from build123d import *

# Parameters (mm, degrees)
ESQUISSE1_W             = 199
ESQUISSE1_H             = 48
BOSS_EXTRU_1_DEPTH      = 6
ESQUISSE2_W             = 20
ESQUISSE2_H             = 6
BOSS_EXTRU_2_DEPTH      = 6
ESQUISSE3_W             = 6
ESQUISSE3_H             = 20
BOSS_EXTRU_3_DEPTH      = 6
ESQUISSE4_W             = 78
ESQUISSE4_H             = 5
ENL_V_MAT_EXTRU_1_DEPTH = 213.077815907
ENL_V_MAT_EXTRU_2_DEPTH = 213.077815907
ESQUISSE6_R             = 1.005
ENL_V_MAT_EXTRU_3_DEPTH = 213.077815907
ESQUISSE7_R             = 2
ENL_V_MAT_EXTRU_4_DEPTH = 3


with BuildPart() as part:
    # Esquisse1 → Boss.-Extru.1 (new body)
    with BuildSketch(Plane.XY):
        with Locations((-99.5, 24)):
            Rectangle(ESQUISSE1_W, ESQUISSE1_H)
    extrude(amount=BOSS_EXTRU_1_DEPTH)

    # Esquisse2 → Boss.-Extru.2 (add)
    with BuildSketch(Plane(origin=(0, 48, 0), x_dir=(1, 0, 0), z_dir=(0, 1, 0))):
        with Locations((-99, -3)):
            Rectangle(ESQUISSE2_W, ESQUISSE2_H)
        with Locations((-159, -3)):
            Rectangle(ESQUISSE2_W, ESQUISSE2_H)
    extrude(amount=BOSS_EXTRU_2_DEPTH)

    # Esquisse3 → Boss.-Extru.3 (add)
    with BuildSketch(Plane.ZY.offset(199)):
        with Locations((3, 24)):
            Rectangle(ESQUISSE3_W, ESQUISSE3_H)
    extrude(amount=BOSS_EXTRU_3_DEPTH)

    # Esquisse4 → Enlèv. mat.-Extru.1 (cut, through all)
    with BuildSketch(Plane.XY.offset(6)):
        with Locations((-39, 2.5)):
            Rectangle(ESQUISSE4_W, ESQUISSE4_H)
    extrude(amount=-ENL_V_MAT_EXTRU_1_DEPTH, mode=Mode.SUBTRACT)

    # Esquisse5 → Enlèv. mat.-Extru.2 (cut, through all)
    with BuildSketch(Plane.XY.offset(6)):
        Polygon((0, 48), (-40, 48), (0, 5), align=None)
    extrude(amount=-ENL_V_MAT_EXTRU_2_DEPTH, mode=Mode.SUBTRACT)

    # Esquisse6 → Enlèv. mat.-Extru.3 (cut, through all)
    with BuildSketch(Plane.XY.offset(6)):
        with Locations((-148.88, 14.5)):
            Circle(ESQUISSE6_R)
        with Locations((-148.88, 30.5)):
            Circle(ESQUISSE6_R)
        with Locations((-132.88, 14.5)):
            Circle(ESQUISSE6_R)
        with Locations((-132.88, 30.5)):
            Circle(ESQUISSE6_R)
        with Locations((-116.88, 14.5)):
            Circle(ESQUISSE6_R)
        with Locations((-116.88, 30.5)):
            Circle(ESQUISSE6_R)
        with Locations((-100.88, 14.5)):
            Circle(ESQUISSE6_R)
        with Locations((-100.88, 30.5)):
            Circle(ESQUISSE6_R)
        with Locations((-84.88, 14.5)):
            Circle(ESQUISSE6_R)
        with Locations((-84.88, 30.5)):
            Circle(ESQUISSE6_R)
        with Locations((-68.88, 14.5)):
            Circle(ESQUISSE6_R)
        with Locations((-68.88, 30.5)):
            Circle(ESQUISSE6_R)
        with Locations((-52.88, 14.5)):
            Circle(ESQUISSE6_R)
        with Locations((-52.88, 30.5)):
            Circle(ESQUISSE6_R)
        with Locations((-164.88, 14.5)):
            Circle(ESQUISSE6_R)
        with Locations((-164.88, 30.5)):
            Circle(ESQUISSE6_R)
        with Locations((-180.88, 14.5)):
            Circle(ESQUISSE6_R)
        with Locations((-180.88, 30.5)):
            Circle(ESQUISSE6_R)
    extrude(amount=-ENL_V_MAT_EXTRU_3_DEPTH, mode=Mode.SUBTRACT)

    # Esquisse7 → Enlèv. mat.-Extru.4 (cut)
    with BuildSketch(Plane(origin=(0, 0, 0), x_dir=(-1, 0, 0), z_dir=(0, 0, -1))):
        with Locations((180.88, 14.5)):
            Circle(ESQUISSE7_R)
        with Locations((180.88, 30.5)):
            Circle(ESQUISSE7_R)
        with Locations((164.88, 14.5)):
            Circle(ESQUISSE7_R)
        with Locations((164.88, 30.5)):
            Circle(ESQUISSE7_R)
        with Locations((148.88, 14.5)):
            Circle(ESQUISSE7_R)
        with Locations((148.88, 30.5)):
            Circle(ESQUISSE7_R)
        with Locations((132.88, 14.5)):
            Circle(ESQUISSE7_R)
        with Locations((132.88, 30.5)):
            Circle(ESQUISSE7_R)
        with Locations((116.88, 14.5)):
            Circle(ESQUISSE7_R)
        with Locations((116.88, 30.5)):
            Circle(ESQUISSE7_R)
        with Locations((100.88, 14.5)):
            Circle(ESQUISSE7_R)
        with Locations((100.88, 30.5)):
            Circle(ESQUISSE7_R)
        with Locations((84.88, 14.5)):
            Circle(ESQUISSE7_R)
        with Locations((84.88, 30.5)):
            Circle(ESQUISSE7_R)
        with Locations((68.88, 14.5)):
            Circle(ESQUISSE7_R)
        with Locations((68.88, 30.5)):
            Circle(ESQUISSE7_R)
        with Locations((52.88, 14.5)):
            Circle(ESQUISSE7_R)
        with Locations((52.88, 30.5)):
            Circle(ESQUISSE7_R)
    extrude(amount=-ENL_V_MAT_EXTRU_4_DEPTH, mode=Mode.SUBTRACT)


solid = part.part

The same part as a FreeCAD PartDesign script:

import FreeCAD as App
import Part
import Sketcher
from FreeCAD import Vector


def add_polygon(sketch, points):
    """Adds a closed chain of lines whose ends are joined by coincident constraints."""
    first, n = sketch.GeometryCount, len(points)
    for a, b in zip(points, points[1:] + points[:1]):
        sketch.addGeometry(Part.LineSegment(App.Vector(*a, 0), App.Vector(*b, 0)), False)
    for i in range(n):
        sketch.addConstraint(Sketcher.Constraint("Coincident", first + i, 2, first + (i + 1) % n, 1))

doc = App.newDocument("Part")
params = doc.addObject("Spreadsheet::Sheet", "Params")
for row, (alias, value) in enumerate([
    ("sketch1_width", "199 mm"),
    ("sketch1_height", "48 mm"),
    ("pad1_length", "6 mm"),
    ("sketch2_width", "20 mm"),
    ("sketch2_height", "6 mm"),
    ("pad2_length", "6 mm"),
    ("sketch3_width", "20 mm"),
    ("sketch3_height", "6 mm"),
    ("pad3_length", "6 mm"),
    ("sketch4_width", "78 mm"),
    ("sketch4_height", "5 mm"),
    ("sketch5_width", "40 mm"),
    ("sketch5_height", "43 mm"),
    ("sketch6_diameter", "2.01 mm"),
    ("sketch7_diameter", "4 mm"),
    ("pocket4_length", "3 mm"),
], start=1):
    params.set(f"A{row}", alias)
    params.set(f"B{row}", "=" + value)
    params.setAlias(f"B{row}", alias)

body = doc.addObject("PartDesign::Body", "Body")

sketch1 = body.newObject("Sketcher::SketchObject", "Sketch")
sketch1.AttachmentSupport = (doc.getObject("XY_Plane"), [""])
sketch1.MapMode = "FlatFace"
add_polygon(sketch1, [(-199, 48), (-199, 0), (0, 0), (0, 48)])
sketch1.addConstraint(Sketcher.Constraint("Vertical", 0))
sketch1.addConstraint(Sketcher.Constraint("Horizontal", 1))
sketch1.addConstraint(Sketcher.Constraint("Vertical", 2))
sketch1.addConstraint(Sketcher.Constraint("Horizontal", 3))
sketch1.addConstraint(Sketcher.Constraint("Coincident", 1, 2, -1, 1))
sketch1.addConstraint(Sketcher.Constraint("DistanceX", 1, 1, 1, 2, 199.0))
sketch1.addConstraint(Sketcher.Constraint("DistanceY", 0, 2, 0, 1, 48.0))
sketch1.setExpression("Constraints[9]", "Params.sketch1_width")
sketch1.setExpression("Constraints[10]", "Params.sketch1_height")
pad1 = body.newObject("PartDesign::Pad", "Pad")
pad1.Profile = sketch1
pad1.setExpression("Length", "Params.pad1_length")

sketch2 = body.newObject("Sketcher::SketchObject", "Sketch001")
sketch2.AttachmentSupport = (doc.getObject("XZ_Plane"), [""])
sketch2.MapMode = "FlatFace"
sketch2.AttachmentOffset = App.Placement(Vector(0, 0, -48), App.Rotation())
add_polygon(sketch2, [(-109, 0), (-109, 6), (-89, 6), (-89, 0)])
add_polygon(sketch2, [(-169, 0), (-169, 6), (-149, 6), (-149, 0)])
sketch2.addConstraint(Sketcher.Constraint("Vertical", 0))
sketch2.addConstraint(Sketcher.Constraint("Horizontal", 1))
sketch2.addConstraint(Sketcher.Constraint("Vertical", 2))
sketch2.addConstraint(Sketcher.Constraint("Horizontal", 3))
sketch2.addConstraint(Sketcher.Constraint("Vertical", 4))
sketch2.addConstraint(Sketcher.Constraint("Horizontal", 5))
sketch2.addConstraint(Sketcher.Constraint("Vertical", 6))
sketch2.addConstraint(Sketcher.Constraint("Horizontal", 7))
sketch2.addConstraint(Sketcher.Constraint("PointOnObject", 2, 2, -1))
sketch2.addConstraint(Sketcher.Constraint("PointOnObject", 6, 2, -1))
sketch2.addConstraint(Sketcher.Constraint("Horizontal", 1, 2, 4, 2))
sketch2.addConstraint(Sketcher.Constraint("Equal", 3, 5))
sketch2.addConstraint(Sketcher.Constraint("DistanceX", 1, 1, 1, 2, 20.0))
sketch2.addConstraint(Sketcher.Constraint("DistanceY", 0, 1, 0, 2, 6.0))
sketch2.addConstraint(Sketcher.Constraint("DistanceX", 0, 2, -1, 1, 109.0))
sketch2.addConstraint(Sketcher.Constraint("DistanceX", 4, 2, -1, 1, 169.0))
sketch2.setExpression("Constraints[20]", "Params.sketch2_width")
sketch2.setExpression("Constraints[21]", "Params.sketch2_height")
pad2 = body.newObject("PartDesign::Pad", "Pad001")
pad2.Profile = sketch2
pad2.setExpression("Length", "Params.pad2_length")
pad2.Reversed = True

sketch3 = body.newObject("Sketcher::SketchObject", "Sketch002")
sketch3.AttachmentSupport = (doc.getObject("YZ_Plane"), [""])
sketch3.MapMode = "FlatFace"
sketch3.AttachmentOffset = App.Placement(Vector(0, 0, -199), App.Rotation())
add_polygon(sketch3, [(34, 0), (14, 0), (14, 6), (34, 6)])
sketch3.addConstraint(Sketcher.Constraint("Horizontal", 0))
sketch3.addConstraint(Sketcher.Constraint("Vertical", 1))
sketch3.addConstraint(Sketcher.Constraint("Horizontal", 2))
sketch3.addConstraint(Sketcher.Constraint("Vertical", 3))
sketch3.addConstraint(Sketcher.Constraint("PointOnObject", 0, 2, -1))
sketch3.addConstraint(Sketcher.Constraint("DistanceX", 0, 2, 0, 1, 20.0))
sketch3.addConstraint(Sketcher.Constraint("DistanceY", 1, 1, 1, 2, 6.0))
sketch3.addConstraint(Sketcher.Constraint("DistanceX", -1, 1, 0, 2, 14.0))
sketch3.setExpression("Constraints[9]", "Params.sketch3_width")
sketch3.setExpression("Constraints[10]", "Params.sketch3_height")
pad3 = body.newObject("PartDesign::Pad", "Pad002")
pad3.Profile = sketch3
pad3.setExpression("Length", "Params.pad3_length")
pad3.Reversed = True

sketch4 = body.newObject("Sketcher::SketchObject", "Sketch003")
sketch4.AttachmentSupport = (doc.getObject("XY_Plane"), [""])
sketch4.MapMode = "FlatFace"
sketch4.AttachmentOffset = App.Placement(Vector(0, 0, 6), App.Rotation())
add_polygon(sketch4, [(-78, 5), (-78, 0), (0, 0), (0, 5)])
sketch4.addConstraint(Sketcher.Constraint("Vertical", 0))
sketch4.addConstraint(Sketcher.Constraint("Horizontal", 1))
sketch4.addConstraint(Sketcher.Constraint("Vertical", 2))
sketch4.addConstraint(Sketcher.Constraint("Horizontal", 3))
sketch4.addConstraint(Sketcher.Constraint("Coincident", 1, 2, -1, 1))
sketch4.addConstraint(Sketcher.Constraint("DistanceX", 1, 1, 1, 2, 78.0))
sketch4.addConstraint(Sketcher.Constraint("DistanceY", 0, 2, 0, 1, 5.0))
sketch4.setExpression("Constraints[9]", "Params.sketch4_width")
sketch4.setExpression("Constraints[10]", "Params.sketch4_height")
pocket1 = body.newObject("PartDesign::Pocket", "Pocket")
pocket1.Profile = sketch4
pocket1.Type = "ThroughAll"

sketch5 = body.newObject("Sketcher::SketchObject", "Sketch004")
sketch5.AttachmentSupport = (doc.getObject("XY_Plane"), [""])
sketch5.MapMode = "FlatFace"
sketch5.AttachmentOffset = App.Placement(Vector(0, 0, 6), App.Rotation())
add_polygon(sketch5, [(0, 48), (-40, 48), (0, 5)])
sketch5.addConstraint(Sketcher.Constraint("Horizontal", 0))
sketch5.addConstraint(Sketcher.Constraint("Vertical", 2))
sketch5.addConstraint(Sketcher.Constraint("PointOnObject", 1, 2, -2))
sketch5.addConstraint(Sketcher.Constraint("DistanceX", 0, 2, 0, 1, 40.0))
sketch5.addConstraint(Sketcher.Constraint("DistanceY", 2, 1, 2, 2, 43.0))
sketch5.addConstraint(Sketcher.Constraint("DistanceY", -1, 1, 0, 2, 48.0))
sketch5.setExpression("Constraints[6]", "Params.sketch5_width")
sketch5.setExpression("Constraints[7]", "Params.sketch5_height")
pocket2 = body.newObject("PartDesign::Pocket", "Pocket001")
pocket2.Profile = sketch5
pocket2.Type = "ThroughAll"

sketch6 = body.newObject("Sketcher::SketchObject", "Sketch005")
sketch6.AttachmentSupport = (doc.getObject("XY_Plane"), [""])
sketch6.MapMode = "FlatFace"
sketch6.AttachmentOffset = App.Placement(Vector(0, 0, 6), App.Rotation())
sketch6.addGeometry(Part.Circle(Vector(-148.88, 14.5, 0), Vector(0, 0, 1), 1.005), False)
sketch6.addGeometry(Part.Circle(Vector(-148.88, 30.5, 0), Vector(0, 0, 1), 1.005), False)
sketch6.addGeometry(Part.Circle(Vector(-132.88, 14.5, 0), Vector(0, 0, 1), 1.005), False)
sketch6.addGeometry(Part.Circle(Vector(-132.88, 30.5, 0), Vector(0, 0, 1), 1.005), False)
sketch6.addGeometry(Part.Circle(Vector(-116.88, 14.5, 0), Vector(0, 0, 1), 1.005), False)
sketch6.addGeometry(Part.Circle(Vector(-116.88, 30.5, 0), Vector(0, 0, 1), 1.005), False)
sketch6.addGeometry(Part.Circle(Vector(-100.88, 14.5, 0), Vector(0, 0, 1), 1.005), False)
sketch6.addGeometry(Part.Circle(Vector(-100.88, 30.5, 0), Vector(0, 0, 1), 1.005), False)
sketch6.addGeometry(Part.Circle(Vector(-84.88, 14.5, 0), Vector(0, 0, 1), 1.005), False)
sketch6.addGeometry(Part.Circle(Vector(-84.88, 30.5, 0), Vector(0, 0, 1), 1.005), False)
sketch6.addGeometry(Part.Circle(Vector(-68.88, 14.5, 0), Vector(0, 0, 1), 1.005), False)
sketch6.addGeometry(Part.Circle(Vector(-68.88, 30.5, 0), Vector(0, 0, 1), 1.005), False)
sketch6.addGeometry(Part.Circle(Vector(-52.88, 14.5, 0), Vector(0, 0, 1), 1.005), False)
sketch6.addGeometry(Part.Circle(Vector(-52.88, 30.5, 0), Vector(0, 0, 1), 1.005), False)
sketch6.addGeometry(Part.Circle(Vector(-164.88, 14.5, 0), Vector(0, 0, 1), 1.005), False)
sketch6.addGeometry(Part.Circle(Vector(-164.88, 30.5, 0), Vector(0, 0, 1), 1.005), False)
sketch6.addGeometry(Part.Circle(Vector(-180.88, 14.5, 0), Vector(0, 0, 1), 1.005), False)
sketch6.addGeometry(Part.Circle(Vector(-180.88, 30.5, 0), Vector(0, 0, 1), 1.005), False)
sketch6.addConstraint(Sketcher.Constraint("Equal", 0, 1))
sketch6.addConstraint(Sketcher.Constraint("Equal", 1, 2))
sketch6.addConstraint(Sketcher.Constraint("Equal", 2, 3))
sketch6.addConstraint(Sketcher.Constraint("Equal", 3, 4))
sketch6.addConstraint(Sketcher.Constraint("Equal", 4, 5))
sketch6.addConstraint(Sketcher.Constraint("Equal", 5, 6))
sketch6.addConstraint(Sketcher.Constraint("Equal", 6, 7))
sketch6.addConstraint(Sketcher.Constraint("Equal", 7, 8))
sketch6.addConstraint(Sketcher.Constraint("Equal", 8, 9))
sketch6.addConstraint(Sketcher.Constraint("Equal", 9, 10))
sketch6.addConstraint(Sketcher.Constraint("Equal", 10, 11))
sketch6.addConstraint(Sketcher.Constraint("Equal", 11, 12))
sketch6.addConstraint(Sketcher.Constraint("Equal", 12, 13))
sketch6.addConstraint(Sketcher.Constraint("Equal", 13, 14))
sketch6.addConstraint(Sketcher.Constraint("Equal", 14, 15))
sketch6.addConstraint(Sketcher.Constraint("Equal", 15, 16))
sketch6.addConstraint(Sketcher.Constraint("Equal", 16, 17))
sketch6.addConstraint(Sketcher.Constraint("Horizontal", 0, 3, 2, 3))
sketch6.addConstraint(Sketcher.Constraint("Horizontal", 1, 3, 3, 3))
sketch6.addConstraint(Sketcher.Constraint("Horizontal", 2, 3, 4, 3))
sketch6.addConstraint(Sketcher.Constraint("Horizontal", 3, 3, 5, 3))
sketch6.addConstraint(Sketcher.Constraint("Horizontal", 4, 3, 6, 3))
sketch6.addConstraint(Sketcher.Constraint("Horizontal", 5, 3, 7, 3))
sketch6.addConstraint(Sketcher.Constraint("Horizontal", 6, 3, 8, 3))
sketch6.addConstraint(Sketcher.Constraint("Horizontal", 7, 3, 9, 3))
sketch6.addConstraint(Sketcher.Constraint("Horizontal", 8, 3, 10, 3))
sketch6.addConstraint(Sketcher.Constraint("Horizontal", 9, 3, 11, 3))
sketch6.addConstraint(Sketcher.Constraint("Horizontal", 10, 3, 12, 3))
sketch6.addConstraint(Sketcher.Constraint("Horizontal", 11, 3, 13, 3))
sketch6.addConstraint(Sketcher.Constraint("Horizontal", 12, 3, 14, 3))
sketch6.addConstraint(Sketcher.Constraint("Horizontal", 13, 3, 15, 3))
sketch6.addConstraint(Sketcher.Constraint("Horizontal", 14, 3, 16, 3))
sketch6.addConstraint(Sketcher.Constraint("Horizontal", 15, 3, 17, 3))
sketch6.addConstraint(Sketcher.Constraint("Vertical", 0, 3, 1, 3))
sketch6.addConstraint(Sketcher.Constraint("Vertical", 2, 3, 3, 3))
sketch6.addConstraint(Sketcher.Constraint("Vertical", 4, 3, 5, 3))
sketch6.addConstraint(Sketcher.Constraint("Vertical", 6, 3, 7, 3))
sketch6.addConstraint(Sketcher.Constraint("Vertical", 8, 3, 9, 3))
sketch6.addConstraint(Sketcher.Constraint("Vertical", 10, 3, 11, 3))
sketch6.addConstraint(Sketcher.Constraint("Vertical", 12, 3, 13, 3))
sketch6.addConstraint(Sketcher.Constraint("Vertical", 14, 3, 15, 3))
sketch6.addConstraint(Sketcher.Constraint("Vertical", 16, 3, 17, 3))
sketch6.addConstraint(Sketcher.Constraint("Diameter", 0, 2.01))
sketch6.addConstraint(Sketcher.Constraint("DistanceY", 0, 3, 1, 3, 16.0))
sketch6.addConstraint(Sketcher.Constraint("DistanceX", 0, 3, 2, 3, 16.0))
sketch6.addConstraint(Sketcher.Constraint("DistanceX", 2, 3, 4, 3, 16.0))
sketch6.addConstraint(Sketcher.Constraint("DistanceX", 4, 3, 6, 3, 16.0))
sketch6.addConstraint(Sketcher.Constraint("DistanceX", 6, 3, 8, 3, 16.0))
sketch6.addConstraint(Sketcher.Constraint("DistanceX", 8, 3, 10, 3, 16.0))
sketch6.addConstraint(Sketcher.Constraint("DistanceX", 10, 3, 12, 3, 16.0))
sketch6.addConstraint(Sketcher.Constraint("DistanceX", 14, 3, 0, 3, 16.0))
sketch6.addConstraint(Sketcher.Constraint("DistanceX", 16, 3, 14, 3, 16.0))
sketch6.addConstraint(Sketcher.Constraint("DistanceY", -1, 1, 0, 3, 14.5))
sketch6.addConstraint(Sketcher.Constraint("DistanceX", 0, 3, -1, 1, 148.88))
sketch6.setExpression("Constraints[42]", "Params.sketch6_diameter")
pocket3 = body.newObject("PartDesign::Pocket", "Pocket002")
pocket3.Profile = sketch6
pocket3.Type = "ThroughAll"

sketch7 = body.newObject("Sketcher::SketchObject", "Sketch006")
sketch7.AttachmentSupport = (doc.getObject("XY_Plane"), [""])
sketch7.MapMode = "FlatFace"
sketch7.addGeometry(Part.Circle(Vector(-180.88, 14.5, 0), Vector(0, 0, 1), 2), False)
sketch7.addGeometry(Part.Circle(Vector(-180.88, 30.5, 0), Vector(0, 0, 1), 2), False)
sketch7.addGeometry(Part.Circle(Vector(-164.88, 14.5, 0), Vector(0, 0, 1), 2), False)
sketch7.addGeometry(Part.Circle(Vector(-164.88, 30.5, 0), Vector(0, 0, 1), 2), False)
sketch7.addGeometry(Part.Circle(Vector(-148.88, 14.5, 0), Vector(0, 0, 1), 2), False)
sketch7.addGeometry(Part.Circle(Vector(-148.88, 30.5, 0), Vector(0, 0, 1), 2), False)
sketch7.addGeometry(Part.Circle(Vector(-132.88, 14.5, 0), Vector(0, 0, 1), 2), False)
sketch7.addGeometry(Part.Circle(Vector(-132.88, 30.5, 0), Vector(0, 0, 1), 2), False)
sketch7.addGeometry(Part.Circle(Vector(-116.88, 14.5, 0), Vector(0, 0, 1), 2), False)
sketch7.addGeometry(Part.Circle(Vector(-116.88, 30.5, 0), Vector(0, 0, 1), 2), False)
sketch7.addGeometry(Part.Circle(Vector(-100.88, 14.5, 0), Vector(0, 0, 1), 2), False)
sketch7.addGeometry(Part.Circle(Vector(-100.88, 30.5, 0), Vector(0, 0, 1), 2), False)
sketch7.addGeometry(Part.Circle(Vector(-84.88, 14.5, 0), Vector(0, 0, 1), 2), False)
sketch7.addGeometry(Part.Circle(Vector(-84.88, 30.5, 0), Vector(0, 0, 1), 2), False)
sketch7.addGeometry(Part.Circle(Vector(-68.88, 14.5, 0), Vector(0, 0, 1), 2), False)
sketch7.addGeometry(Part.Circle(Vector(-68.88, 30.5, 0), Vector(0, 0, 1), 2), False)
sketch7.addGeometry(Part.Circle(Vector(-52.88, 14.5, 0), Vector(0, 0, 1), 2), False)
sketch7.addGeometry(Part.Circle(Vector(-52.88, 30.5, 0), Vector(0, 0, 1), 2), False)
sketch7.addConstraint(Sketcher.Constraint("Equal", 0, 1))
sketch7.addConstraint(Sketcher.Constraint("Equal", 1, 2))
sketch7.addConstraint(Sketcher.Constraint("Equal", 2, 3))
sketch7.addConstraint(Sketcher.Constraint("Equal", 3, 4))
sketch7.addConstraint(Sketcher.Constraint("Equal", 4, 5))
sketch7.addConstraint(Sketcher.Constraint("Equal", 5, 6))
sketch7.addConstraint(Sketcher.Constraint("Equal", 6, 7))
sketch7.addConstraint(Sketcher.Constraint("Equal", 7, 8))
sketch7.addConstraint(Sketcher.Constraint("Equal", 8, 9))
sketch7.addConstraint(Sketcher.Constraint("Equal", 9, 10))
sketch7.addConstraint(Sketcher.Constraint("Equal", 10, 11))
sketch7.addConstraint(Sketcher.Constraint("Equal", 11, 12))
sketch7.addConstraint(Sketcher.Constraint("Equal", 12, 13))
sketch7.addConstraint(Sketcher.Constraint("Equal", 13, 14))
sketch7.addConstraint(Sketcher.Constraint("Equal", 14, 15))
sketch7.addConstraint(Sketcher.Constraint("Equal", 15, 16))
sketch7.addConstraint(Sketcher.Constraint("Equal", 16, 17))
sketch7.addConstraint(Sketcher.Constraint("Horizontal", 0, 3, 2, 3))
sketch7.addConstraint(Sketcher.Constraint("Horizontal", 1, 3, 3, 3))
sketch7.addConstraint(Sketcher.Constraint("Horizontal", 2, 3, 4, 3))
sketch7.addConstraint(Sketcher.Constraint("Horizontal", 3, 3, 5, 3))
sketch7.addConstraint(Sketcher.Constraint("Horizontal", 4, 3, 6, 3))
sketch7.addConstraint(Sketcher.Constraint("Horizontal", 5, 3, 7, 3))
sketch7.addConstraint(Sketcher.Constraint("Horizontal", 6, 3, 8, 3))
sketch7.addConstraint(Sketcher.Constraint("Horizontal", 7, 3, 9, 3))
sketch7.addConstraint(Sketcher.Constraint("Horizontal", 8, 3, 10, 3))
sketch7.addConstraint(Sketcher.Constraint("Horizontal", 9, 3, 11, 3))
sketch7.addConstraint(Sketcher.Constraint("Horizontal", 10, 3, 12, 3))
sketch7.addConstraint(Sketcher.Constraint("Horizontal", 11, 3, 13, 3))
sketch7.addConstraint(Sketcher.Constraint("Horizontal", 12, 3, 14, 3))
sketch7.addConstraint(Sketcher.Constraint("Horizontal", 13, 3, 15, 3))
sketch7.addConstraint(Sketcher.Constraint("Horizontal", 14, 3, 16, 3))
sketch7.addConstraint(Sketcher.Constraint("Horizontal", 15, 3, 17, 3))
sketch7.addConstraint(Sketcher.Constraint("Vertical", 0, 3, 1, 3))
sketch7.addConstraint(Sketcher.Constraint("Vertical", 2, 3, 3, 3))
sketch7.addConstraint(Sketcher.Constraint("Vertical", 4, 3, 5, 3))
sketch7.addConstraint(Sketcher.Constraint("Vertical", 6, 3, 7, 3))
sketch7.addConstraint(Sketcher.Constraint("Vertical", 8, 3, 9, 3))
sketch7.addConstraint(Sketcher.Constraint("Vertical", 10, 3, 11, 3))
sketch7.addConstraint(Sketcher.Constraint("Vertical", 12, 3, 13, 3))
sketch7.addConstraint(Sketcher.Constraint("Vertical", 14, 3, 15, 3))
sketch7.addConstraint(Sketcher.Constraint("Vertical", 16, 3, 17, 3))
sketch7.addConstraint(Sketcher.Constraint("Diameter", 0, 4.0))
sketch7.addConstraint(Sketcher.Constraint("DistanceY", 0, 3, 1, 3, 16.0))
sketch7.addConstraint(Sketcher.Constraint("DistanceX", 0, 3, 2, 3, 16.0))
sketch7.addConstraint(Sketcher.Constraint("DistanceX", 2, 3, 4, 3, 16.0))
sketch7.addConstraint(Sketcher.Constraint("DistanceX", 4, 3, 6, 3, 16.0))
sketch7.addConstraint(Sketcher.Constraint("DistanceX", 6, 3, 8, 3, 16.0))
sketch7.addConstraint(Sketcher.Constraint("DistanceX", 8, 3, 10, 3, 16.0))
sketch7.addConstraint(Sketcher.Constraint("DistanceX", 10, 3, 12, 3, 16.0))
sketch7.addConstraint(Sketcher.Constraint("DistanceX", 12, 3, 14, 3, 16.0))
sketch7.addConstraint(Sketcher.Constraint("DistanceX", 14, 3, 16, 3, 16.0))
sketch7.addConstraint(Sketcher.Constraint("DistanceY", -1, 1, 0, 3, 14.5))
sketch7.addConstraint(Sketcher.Constraint("DistanceX", 0, 3, -1, 1, 180.88))
sketch7.setExpression("Constraints[42]", "Params.sketch7_diameter")
pocket4 = body.newObject("PartDesign::Pocket", "Pocket003")
pocket4.Profile = sketch7
pocket4.setExpression("Length", "Params.pocket4_length")
pocket4.Reversed = True

doc.recompute()
